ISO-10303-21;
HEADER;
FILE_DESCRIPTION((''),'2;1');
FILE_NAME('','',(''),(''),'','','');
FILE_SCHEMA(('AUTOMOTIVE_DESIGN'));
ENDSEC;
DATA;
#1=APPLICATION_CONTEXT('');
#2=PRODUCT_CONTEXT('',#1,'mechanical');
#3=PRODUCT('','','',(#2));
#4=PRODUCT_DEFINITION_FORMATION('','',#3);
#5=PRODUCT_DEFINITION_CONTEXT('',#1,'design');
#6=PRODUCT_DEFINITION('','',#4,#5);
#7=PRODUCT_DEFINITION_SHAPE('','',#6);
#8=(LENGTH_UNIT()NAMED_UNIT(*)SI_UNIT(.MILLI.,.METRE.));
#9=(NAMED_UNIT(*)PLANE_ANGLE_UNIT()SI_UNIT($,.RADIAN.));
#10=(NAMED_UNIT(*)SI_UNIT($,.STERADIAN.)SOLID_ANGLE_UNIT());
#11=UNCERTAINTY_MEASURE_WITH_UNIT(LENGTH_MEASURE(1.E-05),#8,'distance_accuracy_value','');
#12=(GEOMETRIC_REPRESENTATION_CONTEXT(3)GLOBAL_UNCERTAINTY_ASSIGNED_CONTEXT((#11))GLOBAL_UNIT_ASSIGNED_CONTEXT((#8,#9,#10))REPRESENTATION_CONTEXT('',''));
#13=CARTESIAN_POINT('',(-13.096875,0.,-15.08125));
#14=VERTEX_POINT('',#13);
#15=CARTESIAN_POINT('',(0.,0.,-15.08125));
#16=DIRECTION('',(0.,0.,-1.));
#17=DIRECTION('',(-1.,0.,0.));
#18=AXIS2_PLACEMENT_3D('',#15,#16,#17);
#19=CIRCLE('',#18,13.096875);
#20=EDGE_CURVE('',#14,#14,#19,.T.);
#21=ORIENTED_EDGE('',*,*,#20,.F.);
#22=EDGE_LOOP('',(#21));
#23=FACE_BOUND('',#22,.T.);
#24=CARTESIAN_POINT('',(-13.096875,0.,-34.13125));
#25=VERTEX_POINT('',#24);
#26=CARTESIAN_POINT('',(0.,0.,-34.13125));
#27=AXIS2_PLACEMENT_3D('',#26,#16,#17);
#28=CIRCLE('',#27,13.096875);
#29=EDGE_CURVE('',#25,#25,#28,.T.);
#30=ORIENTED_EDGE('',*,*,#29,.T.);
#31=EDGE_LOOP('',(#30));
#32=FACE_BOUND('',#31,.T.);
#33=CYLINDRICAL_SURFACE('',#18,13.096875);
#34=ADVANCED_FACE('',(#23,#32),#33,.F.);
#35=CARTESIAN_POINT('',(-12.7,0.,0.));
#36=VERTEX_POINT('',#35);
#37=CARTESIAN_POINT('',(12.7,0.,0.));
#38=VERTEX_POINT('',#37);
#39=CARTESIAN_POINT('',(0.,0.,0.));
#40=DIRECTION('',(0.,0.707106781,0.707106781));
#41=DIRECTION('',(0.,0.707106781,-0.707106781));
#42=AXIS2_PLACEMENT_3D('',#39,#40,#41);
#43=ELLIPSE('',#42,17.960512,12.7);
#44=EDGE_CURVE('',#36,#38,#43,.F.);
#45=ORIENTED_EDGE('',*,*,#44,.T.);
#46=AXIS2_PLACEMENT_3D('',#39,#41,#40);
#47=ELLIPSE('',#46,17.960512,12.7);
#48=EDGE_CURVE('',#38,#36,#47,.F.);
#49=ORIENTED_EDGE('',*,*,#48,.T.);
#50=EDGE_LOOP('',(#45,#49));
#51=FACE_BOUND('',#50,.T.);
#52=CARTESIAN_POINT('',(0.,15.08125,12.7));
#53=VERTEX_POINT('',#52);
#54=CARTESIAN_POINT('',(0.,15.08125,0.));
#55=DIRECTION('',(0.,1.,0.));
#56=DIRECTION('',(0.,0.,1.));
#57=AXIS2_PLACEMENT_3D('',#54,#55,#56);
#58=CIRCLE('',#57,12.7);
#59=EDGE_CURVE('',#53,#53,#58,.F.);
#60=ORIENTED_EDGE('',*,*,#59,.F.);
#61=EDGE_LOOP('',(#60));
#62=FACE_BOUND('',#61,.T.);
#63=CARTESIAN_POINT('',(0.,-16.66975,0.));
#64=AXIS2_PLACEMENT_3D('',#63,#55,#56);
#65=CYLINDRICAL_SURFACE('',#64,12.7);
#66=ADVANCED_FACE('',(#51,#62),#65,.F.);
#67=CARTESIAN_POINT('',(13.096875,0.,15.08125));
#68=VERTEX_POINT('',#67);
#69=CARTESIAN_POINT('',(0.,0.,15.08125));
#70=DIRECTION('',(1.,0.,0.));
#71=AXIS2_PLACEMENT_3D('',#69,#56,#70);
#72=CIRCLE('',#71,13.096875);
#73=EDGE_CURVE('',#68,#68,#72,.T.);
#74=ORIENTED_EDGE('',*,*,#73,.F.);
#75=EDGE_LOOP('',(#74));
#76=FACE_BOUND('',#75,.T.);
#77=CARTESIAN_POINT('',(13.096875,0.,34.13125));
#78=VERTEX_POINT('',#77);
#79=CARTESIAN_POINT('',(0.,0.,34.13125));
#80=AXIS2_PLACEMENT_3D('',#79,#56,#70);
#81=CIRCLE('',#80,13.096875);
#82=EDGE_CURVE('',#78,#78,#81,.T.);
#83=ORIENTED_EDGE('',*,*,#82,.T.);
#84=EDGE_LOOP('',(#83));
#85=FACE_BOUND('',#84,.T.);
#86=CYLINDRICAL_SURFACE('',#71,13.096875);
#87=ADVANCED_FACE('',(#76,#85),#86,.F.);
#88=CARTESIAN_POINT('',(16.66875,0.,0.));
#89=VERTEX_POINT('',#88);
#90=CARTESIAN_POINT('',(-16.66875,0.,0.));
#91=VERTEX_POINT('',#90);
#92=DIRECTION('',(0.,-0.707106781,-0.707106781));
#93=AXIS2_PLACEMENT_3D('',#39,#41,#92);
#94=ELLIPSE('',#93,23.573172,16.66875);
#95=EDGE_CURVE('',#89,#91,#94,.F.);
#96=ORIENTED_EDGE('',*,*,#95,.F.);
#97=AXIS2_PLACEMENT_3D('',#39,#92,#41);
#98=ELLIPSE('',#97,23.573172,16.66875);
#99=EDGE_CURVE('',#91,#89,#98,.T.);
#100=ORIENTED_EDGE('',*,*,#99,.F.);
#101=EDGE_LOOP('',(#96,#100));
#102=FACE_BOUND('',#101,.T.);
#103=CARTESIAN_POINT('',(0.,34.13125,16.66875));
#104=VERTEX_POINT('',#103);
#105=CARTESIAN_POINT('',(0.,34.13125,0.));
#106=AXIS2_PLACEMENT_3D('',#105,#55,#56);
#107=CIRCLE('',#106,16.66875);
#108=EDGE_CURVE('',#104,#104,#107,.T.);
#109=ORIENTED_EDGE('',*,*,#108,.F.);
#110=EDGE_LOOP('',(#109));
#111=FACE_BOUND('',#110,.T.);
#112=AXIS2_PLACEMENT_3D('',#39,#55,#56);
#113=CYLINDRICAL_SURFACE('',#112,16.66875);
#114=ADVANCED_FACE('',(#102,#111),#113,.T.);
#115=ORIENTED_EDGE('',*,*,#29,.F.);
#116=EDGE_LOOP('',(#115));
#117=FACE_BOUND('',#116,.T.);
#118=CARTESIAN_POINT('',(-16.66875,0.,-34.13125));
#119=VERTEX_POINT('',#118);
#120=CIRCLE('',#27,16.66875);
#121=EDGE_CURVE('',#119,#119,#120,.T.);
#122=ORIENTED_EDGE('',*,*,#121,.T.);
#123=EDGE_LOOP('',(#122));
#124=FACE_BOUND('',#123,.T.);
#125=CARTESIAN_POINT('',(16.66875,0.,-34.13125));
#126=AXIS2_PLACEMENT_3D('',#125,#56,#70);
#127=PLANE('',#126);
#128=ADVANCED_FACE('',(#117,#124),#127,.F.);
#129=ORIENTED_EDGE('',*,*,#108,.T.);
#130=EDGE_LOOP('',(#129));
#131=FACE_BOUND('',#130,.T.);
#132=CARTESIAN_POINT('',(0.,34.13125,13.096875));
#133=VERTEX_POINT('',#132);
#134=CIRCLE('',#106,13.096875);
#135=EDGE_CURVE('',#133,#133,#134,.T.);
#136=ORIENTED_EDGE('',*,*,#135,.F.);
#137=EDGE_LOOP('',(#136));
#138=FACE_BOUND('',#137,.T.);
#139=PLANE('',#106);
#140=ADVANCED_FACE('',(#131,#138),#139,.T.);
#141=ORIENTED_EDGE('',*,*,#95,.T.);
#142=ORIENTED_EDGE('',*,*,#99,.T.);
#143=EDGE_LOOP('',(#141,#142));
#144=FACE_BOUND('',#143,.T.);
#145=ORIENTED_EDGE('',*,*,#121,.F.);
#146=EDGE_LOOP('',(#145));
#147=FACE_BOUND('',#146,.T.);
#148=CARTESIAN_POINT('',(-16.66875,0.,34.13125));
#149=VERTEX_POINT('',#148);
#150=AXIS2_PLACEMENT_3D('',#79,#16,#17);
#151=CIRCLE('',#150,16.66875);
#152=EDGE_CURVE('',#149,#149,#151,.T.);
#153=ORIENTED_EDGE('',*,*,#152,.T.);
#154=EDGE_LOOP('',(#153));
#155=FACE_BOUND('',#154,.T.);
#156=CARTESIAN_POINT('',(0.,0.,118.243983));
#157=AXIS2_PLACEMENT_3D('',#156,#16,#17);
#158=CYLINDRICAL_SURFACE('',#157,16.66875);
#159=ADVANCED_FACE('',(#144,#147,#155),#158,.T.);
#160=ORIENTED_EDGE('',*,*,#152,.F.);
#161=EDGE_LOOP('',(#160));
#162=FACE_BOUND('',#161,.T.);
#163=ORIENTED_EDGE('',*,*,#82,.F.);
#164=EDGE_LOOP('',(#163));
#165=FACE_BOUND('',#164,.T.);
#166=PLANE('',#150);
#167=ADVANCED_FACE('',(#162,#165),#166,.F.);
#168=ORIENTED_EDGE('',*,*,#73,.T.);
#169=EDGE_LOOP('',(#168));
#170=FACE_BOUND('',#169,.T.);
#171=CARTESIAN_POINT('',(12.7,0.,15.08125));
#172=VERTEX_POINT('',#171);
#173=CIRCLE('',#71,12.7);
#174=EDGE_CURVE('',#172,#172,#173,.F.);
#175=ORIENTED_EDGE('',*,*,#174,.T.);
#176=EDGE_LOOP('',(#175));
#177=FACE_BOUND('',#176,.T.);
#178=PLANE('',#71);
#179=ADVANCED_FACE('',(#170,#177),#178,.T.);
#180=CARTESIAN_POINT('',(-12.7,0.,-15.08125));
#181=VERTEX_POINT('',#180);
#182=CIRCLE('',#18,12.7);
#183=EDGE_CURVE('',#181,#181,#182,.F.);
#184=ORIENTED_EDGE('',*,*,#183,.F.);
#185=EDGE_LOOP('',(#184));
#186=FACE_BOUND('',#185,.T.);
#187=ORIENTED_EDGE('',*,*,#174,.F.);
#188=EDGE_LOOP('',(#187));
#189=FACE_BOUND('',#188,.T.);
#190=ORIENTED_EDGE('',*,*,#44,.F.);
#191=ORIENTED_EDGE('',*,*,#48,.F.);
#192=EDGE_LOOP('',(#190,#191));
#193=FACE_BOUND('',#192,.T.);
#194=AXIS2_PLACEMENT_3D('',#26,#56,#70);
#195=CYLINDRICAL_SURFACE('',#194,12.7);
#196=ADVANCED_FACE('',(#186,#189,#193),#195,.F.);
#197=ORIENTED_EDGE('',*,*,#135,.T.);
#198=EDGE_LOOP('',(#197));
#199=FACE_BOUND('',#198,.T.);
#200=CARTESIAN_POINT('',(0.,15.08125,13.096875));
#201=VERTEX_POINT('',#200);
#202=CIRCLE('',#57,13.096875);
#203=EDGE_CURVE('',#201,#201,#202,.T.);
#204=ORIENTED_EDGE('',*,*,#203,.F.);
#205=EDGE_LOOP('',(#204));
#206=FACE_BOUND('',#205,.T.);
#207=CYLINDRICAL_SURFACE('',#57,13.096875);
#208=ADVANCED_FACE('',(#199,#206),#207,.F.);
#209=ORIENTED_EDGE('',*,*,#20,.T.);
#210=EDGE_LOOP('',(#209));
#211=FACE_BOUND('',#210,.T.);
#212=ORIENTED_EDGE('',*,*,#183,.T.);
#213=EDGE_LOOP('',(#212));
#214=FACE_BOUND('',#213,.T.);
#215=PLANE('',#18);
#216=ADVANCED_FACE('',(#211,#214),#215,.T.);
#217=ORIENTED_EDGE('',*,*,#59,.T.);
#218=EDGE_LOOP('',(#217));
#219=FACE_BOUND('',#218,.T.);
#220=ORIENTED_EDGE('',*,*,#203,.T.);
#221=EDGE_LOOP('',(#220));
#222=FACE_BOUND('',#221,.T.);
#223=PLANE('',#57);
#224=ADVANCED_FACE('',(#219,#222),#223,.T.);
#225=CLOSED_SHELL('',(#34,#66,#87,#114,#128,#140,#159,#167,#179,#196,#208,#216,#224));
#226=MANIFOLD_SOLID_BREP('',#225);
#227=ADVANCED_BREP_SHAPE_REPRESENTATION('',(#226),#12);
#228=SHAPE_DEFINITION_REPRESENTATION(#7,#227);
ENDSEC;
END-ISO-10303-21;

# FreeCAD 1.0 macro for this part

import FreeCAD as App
import Part
import Sketcher

V = App.Vector
Q = App.Units.Quantity


def add_polygon(sketch, points):
    """Adds a closed chain of lines whose ends are joined by coincident constraints."""
    first, n = sketch.GeometryCount, len(points)
    for a, b in zip(points, points[1:] + points[:1]):
        sketch.addGeometry(Part.LineSegment(App.Vector(*a, 0), App.Vector(*b, 0)), False)
    for i in range(n):
        sketch.addConstraint(Sketcher.Constraint("Coincident", first + i, 2, first + (i + 1) % n, 1))

doc = App.newDocument("Part")
body = doc.addObject("PartDesign::Body", "Body")

sketch1 = body.newObject("Sketcher::SketchObject", "Sketch")
sketch1.AttachmentSupport = (doc.getObject("XZ_Plane"), [""])
sketch1.MapMode = "FlatFace"
add_polygon(sketch1, [(0, -34), (0, 34), (17, 34), (17, -34)])
sketch1.addConstraint(Sketcher.Constraint("Vertical", 0))
sketch1.addConstraint(Sketcher.Constraint("Horizontal", 1))
sketch1.addConstraint(Sketcher.Constraint("Vertical", 2))
sketch1.addConstraint(Sketcher.Constraint("Horizontal", 3))
sketch1.addConstraint(Sketcher.Constraint("Symmetric", 0, 2, 3, 2, -1, 1))
sketch1.addConstraint(Sketcher.Constraint("DistanceX", 1, 1, 1, 2, Q("0.65625 in")))
sketch1.addConstraint(Sketcher.Constraint("DistanceY", 0, 1, 0, 2, Q("2.6875 in")))
revolution = body.newObject("PartDesign::Revolution", "Revolution")
revolution.Profile = sketch1
revolution.ReferenceAxis = (sketch1, ["V_Axis"])
revolution.Angle = 360

sketch2 = body.newObject("Sketcher::SketchObject", "Sketch001")
sketch2.AttachmentSupport = (doc.getObject("XY_Plane"), [""])
sketch2.MapMode = "FlatFace"
add_polygon(sketch2, [(-17, 34), (-17, 0), (0, 0), (0, 34)])
sketch2.addConstraint(Sketcher.Constraint("Vertical", 0))
sketch2.addConstraint(Sketcher.Constraint("Horizontal", 1))
sketch2.addConstraint(Sketcher.Constraint("Vertical", 2))
sketch2.addConstraint(Sketcher.Constraint("Horizontal", 3))
sketch2.addConstraint(Sketcher.Constraint("Coincident", 1, 2, -1, 1))
sketch2.addConstraint(Sketcher.Constraint("DistanceX", 1, 1, 1, 2, Q("0.65625 in")))
sketch2.addConstraint(Sketcher.Constraint("DistanceY", 0, 2, 0, 1, Q("1.34375 in")))
revolution2 = body.newObject("PartDesign::Revolution", "Revolution001")
revolution2.Profile = sketch2
revolution2.ReferenceAxis = (sketch2, ["V_Axis"])
revolution2.Angle = 360

sketch3 = body.newObject("Sketcher::SketchObject", "Sketch002")
sketch3.AttachmentSupport = (doc.getObject("XY_Plane"), [""])
sketch3.MapMode = "FlatFace"
sketch3.AttachmentOffset = App.Placement(V(0, 0, 1.34375 * 25.4), App.Rotation())
sketch3.addGeometry(Part.Circle(V(0, 0, 0), V(0, 0, 1), 13), False)
sketch3.addConstraint(Sketcher.Constraint("Coincident", 0, 3, -1, 1))
sketch3.addConstraint(Sketcher.Constraint("Diameter", 0, Q("1 in")))
pocket1 = body.newObject("PartDesign::Pocket", "Pocket")
pocket1.Profile = sketch3
pocket1.Type = "ThroughAll"

sketch4 = body.newObject("Sketcher::SketchObject", "Sketch003")
sketch4.AttachmentSupport = (doc.getObject("XZ_Plane"), [""])
sketch4.MapMode = "FlatFace"
sketch4.AttachmentOffset = App.Placement(V(0, 0, -1.34375 * 25.4), App.Rotation())
sketch4.addGeometry(Part.Circle(V(0, 0, 0), V(0, 0, 1), 13), False)
sketch4.addConstraint(Sketcher.Constraint("Coincident", 0, 3, -1, 1))
sketch4.addConstraint(Sketcher.Constraint("Diameter", 0, Q("1 in")))
pocket2 = body.newObject("PartDesign::Pocket", "Pocket001")
pocket2.Profile = sketch4
pocket2.Type = "UpToFirst"
pocket2.Reversed = True

sketch5 = body.newObject("Sketcher::SketchObject", "Sketch004")
sketch5.AttachmentSupport = (doc.getObject("XY_Plane"), [""])
sketch5.MapMode = "FlatFace"
sketch5.AttachmentOffset = App.Placement(V(0, 0, 1.34375 * 25.4), App.Rotation())
sketch5.addGeometry(Part.Circle(V(0, 0, 0), V(0, 0, 1), 13), False)
sketch5.addConstraint(Sketcher.Constraint("Coincident", 0, 3, -1, 1))
sketch5.addConstraint(Sketcher.Constraint("Diameter", 0, Q("1.03125 in")))
pocket3 = body.newObject("PartDesign::Pocket", "Pocket002")
pocket3.Profile = sketch5
pocket3.Length = Q("0.75 in")

sketch6 = body.newObject("Sketcher::SketchObject", "Sketch005")
sketch6.AttachmentSupport = (doc.getObject("XY_Plane"), [""])
sketch6.MapMode = "FlatFace"
sketch6.AttachmentOffset = App.Placement(V(0, 0, -1.34375 * 25.4), App.Rotation())
sketch6.addGeometry(Part.Circle(V(0, 0, 0), V(0, 0, 1), 13), False)
sketch6.addConstraint(Sketcher.Constraint("Coincident", 0, 3, -1, 1))
sketch6.addConstraint(Sketcher.Constraint("Diameter", 0, Q("1.03125 in")))
pocket4 = body.newObject("PartDesign::Pocket", "Pocket003")
pocket4.Profile = sketch6
pocket4.Length = Q("0.75 in")
pocket4.Reversed = True

sketch7 = body.newObject("Sketcher::SketchObject", "Sketch006")
sketch7.AttachmentSupport = (doc.getObject("XZ_Plane"), [""])
sketch7.MapMode = "FlatFace"
sketch7.AttachmentOffset = App.Placement(V(0, 0, -1.34375 * 25.4), App.Rotation())
sketch7.addGeometry(Part.Circle(V(0, 0, 0), V(0, 0, 1), 13), False)
sketch7.addConstraint(Sketcher.Constraint("Coincident", 0, 3, -1, 1))
sketch7.addConstraint(Sketcher.Constraint("Diameter", 0, Q("1.03125 in")))
pocket5 = body.newObject("PartDesign::Pocket", "Pocket004")
pocket5.Profile = sketch7
pocket5.Length = Q("0.75 in")
pocket5.Reversed = True

doc.recompute()
